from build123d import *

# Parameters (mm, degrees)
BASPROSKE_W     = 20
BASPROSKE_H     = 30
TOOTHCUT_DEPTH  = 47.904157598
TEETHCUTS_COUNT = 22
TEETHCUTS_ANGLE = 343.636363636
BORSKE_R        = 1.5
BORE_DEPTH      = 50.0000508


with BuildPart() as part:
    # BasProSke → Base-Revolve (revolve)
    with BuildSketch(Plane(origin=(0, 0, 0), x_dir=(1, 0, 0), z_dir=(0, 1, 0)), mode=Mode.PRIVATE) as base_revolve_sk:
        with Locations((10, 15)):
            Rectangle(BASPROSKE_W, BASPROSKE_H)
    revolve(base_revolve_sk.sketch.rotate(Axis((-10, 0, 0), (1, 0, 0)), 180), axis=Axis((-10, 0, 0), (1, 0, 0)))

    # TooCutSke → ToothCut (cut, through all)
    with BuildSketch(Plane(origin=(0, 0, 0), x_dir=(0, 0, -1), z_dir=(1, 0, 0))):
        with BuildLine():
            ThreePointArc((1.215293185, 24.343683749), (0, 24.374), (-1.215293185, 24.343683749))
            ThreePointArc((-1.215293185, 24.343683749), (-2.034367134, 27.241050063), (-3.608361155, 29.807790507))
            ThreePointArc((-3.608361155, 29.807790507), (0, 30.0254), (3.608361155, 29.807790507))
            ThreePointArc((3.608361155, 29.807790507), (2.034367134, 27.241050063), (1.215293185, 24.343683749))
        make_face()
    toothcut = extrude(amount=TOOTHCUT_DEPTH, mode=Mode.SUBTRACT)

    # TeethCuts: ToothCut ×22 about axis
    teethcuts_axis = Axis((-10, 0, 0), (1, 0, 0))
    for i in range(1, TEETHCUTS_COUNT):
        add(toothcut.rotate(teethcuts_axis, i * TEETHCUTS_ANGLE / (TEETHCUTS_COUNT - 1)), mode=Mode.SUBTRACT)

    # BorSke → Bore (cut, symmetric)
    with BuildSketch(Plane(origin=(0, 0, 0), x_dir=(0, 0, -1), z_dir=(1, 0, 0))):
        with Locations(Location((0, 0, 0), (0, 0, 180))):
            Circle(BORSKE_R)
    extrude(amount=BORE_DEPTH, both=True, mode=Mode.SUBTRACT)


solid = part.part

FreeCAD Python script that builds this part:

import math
import FreeCAD as App
import Part
import Sketcher
from FreeCAD import Vector
Q = App.Units.Quantity

doc = App.newDocument("Part")
body = doc.addObject("PartDesign::Body", "Body")

# Sketch on XZ plane
sketch1 = body.newObject("Sketcher::SketchObject", "Sketch")
sketch1.AttachmentSupport = (doc.getObject("XZ_Plane"), [""])
sketch1.MapMode = "FlatFace"
sketch1.addGeometry(Part.LineSegment(Vector(0, -30, 0), Vector(0, 0, 0)), False)
sketch1.addGeometry(Part.LineSegment(Vector(0, 0, 0), Vector(20, 0, 0)), False)
sketch1.addGeometry(Part.LineSegment(Vector(20, 0, 0), Vector(20, -30, 0)), False)
sketch1.addGeometry(Part.LineSegment(Vector(20, -30, 0), Vector(0, -30, 0)), False)
sketch1.addConstraint(Sketcher.Constraint("Coincident", 0, 2, 1, 1))
sketch1.addConstraint(Sketcher.Constraint("Coincident", 1, 2, 2, 1))
sketch1.addConstraint(Sketcher.Constraint("Coincident", 2, 2, 3, 1))
sketch1.addConstraint(Sketcher.Constraint("Coincident", 3, 2, 0, 1))
sketch1.addConstraint(Sketcher.Constraint("Vertical", 0))
sketch1.addConstraint(Sketcher.Constraint("Horizontal", 1))
sketch1.addConstraint(Sketcher.Constraint("Vertical", 2))
sketch1.addConstraint(Sketcher.Constraint("Horizontal", 3))
sketch1.addConstraint(Sketcher.Constraint("Coincident", 0, 2, -1, 1))
sketch1.addConstraint(Sketcher.Constraint("DistanceX", 1, 1, 1, 2, Q("20 mm")))
sketch1.addConstraint(Sketcher.Constraint("DistanceY", 0, 1, 0, 2, Q("30 mm")))
revolution = body.newObject("PartDesign::Revolution", "Revolution")
revolution.Profile = sketch1
revolution.ReferenceAxis = (sketch1, ["H_Axis"])
revolution.Angle = 360

# Sketch on YZ plane
sketch2 = body.newObject("Sketcher::SketchObject", "Sketch001")
sketch2.AttachmentSupport = (doc.getObject("YZ_Plane"), [""])
sketch2.MapMode = "FlatFace"
sketch2.addGeometry(Part.ArcOfCircle(Part.Circle(Vector(0, 0, 0), Vector(0, 0, 1), 24.374), math.radians(-2.857966), math.radians(2.857966)), False)
sketch2.addGeometry(Part.ArcOfCircle(Part.Circle(Vector(22.828141, -12.11039, 0), Vector(0, 0, 1), 11), math.radians(50.616081), math.radians(82.08079)), False)
sketch2.addGeometry(Part.ArcOfCircle(Part.Circle(Vector(0, 0, 0), Vector(0, 0, 1), 30.0254), math.radians(-6.902315), math.radians(6.902315)), False)
sketch2.addGeometry(Part.ArcOfCircle(Part.Circle(Vector(22.828141, 12.11039, 0), Vector(0, 0, 1), 11), math.radians(-82.08079), math.radians(-50.616081)), False)
sketch2.addConstraint(Sketcher.Constraint("Coincident", 0, 1, 1, 2))
sketch2.addConstraint(Sketcher.Constraint("Coincident", 1, 1, 2, 1))
sketch2.addConstraint(Sketcher.Constraint("Coincident", 2, 2, 3, 2))
sketch2.addConstraint(Sketcher.Constraint("Coincident", 3, 1, 0, 2))
sketch2.addConstraint(Sketcher.Constraint("Coincident", 0, 3, -1, 1))
sketch2.addConstraint(Sketcher.Constraint("Coincident", 2, 3, -1, 1))
sketch2.addConstraint(Sketcher.Constraint("Equal", 1, 3))
sketch2.addConstraint(Sketcher.Constraint("Symmetric", 1, 3, 3, 3, -1))
sketch2.addConstraint(Sketcher.Constraint("Radius", 1, Q("11 mm")))
sketch2.addConstraint(Sketcher.Constraint("Radius", 0, Q("24.374 mm")))
sketch2.addConstraint(Sketcher.Constraint("Radius", 2, Q("30.0254 mm")))
sketch2.addConstraint(Sketcher.Constraint("DistanceX", -1, 1, 1, 3, Q("22.828141 mm")))
sketch2.addConstraint(Sketcher.Constraint("DistanceY", 1, 3, -1, 1, Q("12.11039 mm")))
pocket1 = body.newObject("PartDesign::Pocket", "Pocket")
pocket1.Profile = sketch2
pocket1.Type = "ThroughAll"
pocket1.Reversed = True
doc.recompute()

polarpattern = body.newObject("PartDesign::PolarPattern", "PolarPattern")
polarpattern.Originals = [pocket1]
polarpattern.Axis = (doc.getObject("X_Axis"), [""])
polarpattern.Angle = 360
polarpattern.Occurrences = 22
body.Tip = polarpattern

# Sketch on YZ plane
sketch3 = body.newObject("Sketcher::SketchObject", "Sketch002")
sketch3.AttachmentSupport = (doc.getObject("YZ_Plane"), [""])
sketch3.MapMode = "FlatFace"
sketch3.addGeometry(Part.Circle(Vector(0, 0, 0), Vector(0, 0, 1), 1.5), False)
sketch3.addConstraint(Sketcher.Constraint("Coincident", 0, 3, -1, 1))
sketch3.addConstraint(Sketcher.Constraint("Diameter", 0, Q("3 mm")))
pocket2 = body.newObject("PartDesign::Pocket", "Pocket001")
pocket2.Profile = sketch3
pocket2.Length = 100.000102
pocket2.Midplane = True

doc.recompute()
